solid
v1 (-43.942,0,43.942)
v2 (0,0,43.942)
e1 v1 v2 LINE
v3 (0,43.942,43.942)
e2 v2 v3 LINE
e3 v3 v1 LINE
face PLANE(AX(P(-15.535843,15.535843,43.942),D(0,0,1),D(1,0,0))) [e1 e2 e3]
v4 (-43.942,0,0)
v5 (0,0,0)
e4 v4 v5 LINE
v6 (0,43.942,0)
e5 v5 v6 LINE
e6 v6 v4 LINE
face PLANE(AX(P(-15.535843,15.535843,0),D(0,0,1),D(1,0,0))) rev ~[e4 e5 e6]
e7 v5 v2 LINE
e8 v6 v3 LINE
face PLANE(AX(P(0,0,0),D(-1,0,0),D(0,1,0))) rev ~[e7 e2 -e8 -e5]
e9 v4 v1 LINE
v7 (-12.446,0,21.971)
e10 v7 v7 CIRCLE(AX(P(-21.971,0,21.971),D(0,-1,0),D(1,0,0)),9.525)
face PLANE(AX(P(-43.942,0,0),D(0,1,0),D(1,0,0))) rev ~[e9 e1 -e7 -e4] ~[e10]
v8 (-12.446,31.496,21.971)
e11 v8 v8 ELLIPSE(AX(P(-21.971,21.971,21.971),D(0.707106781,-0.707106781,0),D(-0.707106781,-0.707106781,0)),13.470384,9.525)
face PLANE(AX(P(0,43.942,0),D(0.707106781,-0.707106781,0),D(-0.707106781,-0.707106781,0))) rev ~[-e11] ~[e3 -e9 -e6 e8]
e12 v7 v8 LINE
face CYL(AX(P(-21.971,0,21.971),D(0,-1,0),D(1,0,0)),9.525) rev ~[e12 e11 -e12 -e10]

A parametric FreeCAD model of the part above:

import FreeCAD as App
import Part
import Sketcher
from FreeCAD import Vector
Q = App.Units.Quantity

doc = App.newDocument("Part")
params = doc.addObject("Spreadsheet::Sheet", "Params")
for row, (alias, value) in enumerate([
    ("sketch1_width", "1.73 in"),
    ("pad1_length", "1.73 in"),
    ("sketch2_diameter", "0.75 in"),
], start=1):
    params.set(f"A{row}", alias)
    params.set(f"B{row}", "=" + value)
    params.setAlias(f"B{row}", alias)

body = doc.addObject("PartDesign::Body", "Body")

# Sketch on XY plane
sketch1 = body.newObject("Sketcher::SketchObject", "Sketch")
sketch1.AttachmentSupport = (doc.getObject("XY_Plane"), [""])
sketch1.MapMode = "FlatFace"
sketch1.addGeometry([
    Part.LineSegment(Vector(-43.942, 0, 0), Vector(0, 0, 0)),
    Part.LineSegment(Vector(0, 0, 0), Vector(0, 43.942, 0)),
    Part.LineSegment(Vector(0, 43.942, 0), Vector(-43.942, 0, 0)),
], False)
sketch1.addConstraint([
    Sketcher.Constraint("Coincident", 0, 2, 1, 1),
    Sketcher.Constraint("Coincident", 1, 2, 2, 1),
    Sketcher.Constraint("Coincident", 2, 2, 0, 1),
    Sketcher.Constraint("Horizontal", 0),
    Sketcher.Constraint("Vertical", 1),
    Sketcher.Constraint("Coincident", 0, 2, -1, 1),
    Sketcher.Constraint("Equal", 0, 1),
    Sketcher.Constraint("DistanceX", 0, 1, 0, 2, Q("1.73 in")),
])
sketch1.setExpression("Constraints[7]", "Params.sketch1_width")
pad1 = body.newObject("PartDesign::Pad", "Pad")
pad1.Profile = sketch1
pad1.setExpression("Length", "Params.pad1_length")

# Sketch on XZ plane
sketch2 = body.newObject("Sketcher::SketchObject", "Sketch001")
sketch2.AttachmentSupport = (doc.getObject("XZ_Plane"), [""])
sketch2.MapMode = "FlatFace"
sketch2.addGeometry(Part.Circle(Vector(-21.971, 21.971, 0), Vector(0, 0, 1), 9.525), False)
sketch2.addConstraint([
    Sketcher.Constraint("Diameter", 0, Q("0.75 in")),
    Sketcher.Constraint("DistanceX", 0, 3, -1, 1, Q("0.865 in")),
    Sketcher.Constraint("DistanceY", -1, 1, 0, 3, Q("0.865 in")),
])
sketch2.setExpression("Constraints[0]", "Params.sketch2_diameter")
pocket1 = body.newObject("PartDesign::Pocket", "Pocket")
pocket1.Profile = sketch2
pocket1.Type = "ThroughAll"

doc.recompute()
